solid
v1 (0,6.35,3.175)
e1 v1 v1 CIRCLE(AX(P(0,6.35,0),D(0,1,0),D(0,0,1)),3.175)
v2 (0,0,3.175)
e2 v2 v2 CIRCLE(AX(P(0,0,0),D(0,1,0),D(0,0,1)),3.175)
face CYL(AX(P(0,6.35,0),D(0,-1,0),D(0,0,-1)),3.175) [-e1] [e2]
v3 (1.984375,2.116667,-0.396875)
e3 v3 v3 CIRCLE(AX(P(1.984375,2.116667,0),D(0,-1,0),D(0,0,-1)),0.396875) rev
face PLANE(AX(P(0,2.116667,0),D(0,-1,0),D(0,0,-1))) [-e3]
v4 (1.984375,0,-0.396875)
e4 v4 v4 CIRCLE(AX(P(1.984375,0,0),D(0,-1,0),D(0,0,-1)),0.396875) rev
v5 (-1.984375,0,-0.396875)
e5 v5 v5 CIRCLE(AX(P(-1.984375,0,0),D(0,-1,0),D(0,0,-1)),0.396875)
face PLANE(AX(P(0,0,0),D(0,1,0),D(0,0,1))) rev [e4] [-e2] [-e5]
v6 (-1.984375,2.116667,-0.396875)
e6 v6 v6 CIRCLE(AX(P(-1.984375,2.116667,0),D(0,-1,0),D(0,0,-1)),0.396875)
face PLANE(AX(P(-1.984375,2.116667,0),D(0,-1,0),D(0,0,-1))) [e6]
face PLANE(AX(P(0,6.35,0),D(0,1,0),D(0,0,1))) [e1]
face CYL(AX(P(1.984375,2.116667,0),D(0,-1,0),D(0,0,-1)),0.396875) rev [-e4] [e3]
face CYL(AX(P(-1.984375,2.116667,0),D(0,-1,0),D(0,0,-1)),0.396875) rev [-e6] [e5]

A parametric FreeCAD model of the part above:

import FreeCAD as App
import Part
import Sketcher
from FreeCAD import Vector
Q = App.Units.Quantity

doc = App.newDocument("Part")
body = doc.addObject("PartDesign::Body", "Body")

sketch1 = doc.addObject("Sketcher::SketchObject", "Sketch")
body.addObject(sketch1)
sketch1.AttachmentSupport = (doc.XZ_Plane, [""])
sketch1.MapMode = "FlatFace"
sketch1.addGeometry(Part.Circle(Vector(0, 0, 0), Vector(0, 0, 1), 3.2), False)
sketch1.addConstraint([
    Sketcher.Constraint("Coincident", 0, 3, -1, 1),
    Sketcher.Constraint("Diameter", 0, Q("0.25 in")),
])
pad1 = doc.addObject("PartDesign::Pad", "Pad")
body.addObject(pad1)
pad1.Profile = sketch1
pad1.Length = Q("0.25 in")
pad1.Reversed = True

sketch2 = doc.addObject("Sketcher::SketchObject", "Sketch001")
body.addObject(sketch2)
sketch2.AttachmentSupport = (doc.XZ_Plane, [""])
sketch2.MapMode = "FlatFace"
sketch2.addGeometry([
    Part.Circle(Vector(1.98, 0, 0), Vector(0, 0, 1), 0.4),
    Part.Circle(Vector(-1.98, 0, 0), Vector(0, 0, 1), 0.4),
], False)
sketch2.addConstraint([
    Sketcher.Constraint("Equal", 0, 1),
    Sketcher.Constraint("Symmetric", 0, 3, 1, 3, -1, 1),
    Sketcher.Constraint("PointOnObject", 0, 3, -1),
    Sketcher.Constraint("Diameter", 0, Q("0.03125 in")),
    Sketcher.Constraint("DistanceX", -1, 1, 0, 3, Q("0.078125 in")),
])
pocket1 = doc.addObject("PartDesign::Pocket", "Pocket")
body.addObject(pocket1)
pocket1.Profile = sketch2
pocket1.Length = 2.116667

doc.recompute()
